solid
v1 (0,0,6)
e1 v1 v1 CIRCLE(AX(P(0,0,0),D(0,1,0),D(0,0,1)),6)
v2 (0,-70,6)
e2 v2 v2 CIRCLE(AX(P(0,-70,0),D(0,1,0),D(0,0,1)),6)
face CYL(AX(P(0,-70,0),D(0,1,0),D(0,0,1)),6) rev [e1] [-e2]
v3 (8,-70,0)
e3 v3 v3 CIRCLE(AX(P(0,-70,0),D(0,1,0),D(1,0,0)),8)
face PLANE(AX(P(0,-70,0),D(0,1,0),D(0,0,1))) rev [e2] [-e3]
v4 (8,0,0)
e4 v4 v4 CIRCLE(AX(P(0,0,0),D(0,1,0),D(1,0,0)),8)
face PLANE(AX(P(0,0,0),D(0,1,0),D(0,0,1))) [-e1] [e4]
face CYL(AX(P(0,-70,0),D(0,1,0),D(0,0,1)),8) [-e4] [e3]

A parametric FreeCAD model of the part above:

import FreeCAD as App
import Part
import Sketcher

V = App.Vector
Q = App.Units.Quantity

doc = App.newDocument("Part")
body = doc.addObject("PartDesign::Body", "Body")

sketch1 = body.newObject("Sketcher::SketchObject", "Sketch")
sketch1.AttachmentSupport = (doc.getObject("XZ_Plane"), [""])
sketch1.MapMode = "FlatFace"
sketch1.addGeometry(Part.Circle(V(0, 0, 0), V(0, 0, 1), 8), False)
sketch1.addGeometry(Part.Circle(V(0, 0, 0), V(0, 0, 1), 6), False)
sketch1.addConstraint(Sketcher.Constraint("Coincident", 0, 3, -1, 1))
sketch1.addConstraint(Sketcher.Constraint("Coincident", 1, 3, -1, 1))
sketch1.addConstraint(Sketcher.Constraint("Diameter", 0, Q("16 mm")))
sketch1.addConstraint(Sketcher.Constraint("Diameter", 1, Q("12 mm")))
pad1 = body.newObject("PartDesign::Pad", "Pad")
pad1.Profile = sketch1
pad1.Length = 70

doc.recompute()
